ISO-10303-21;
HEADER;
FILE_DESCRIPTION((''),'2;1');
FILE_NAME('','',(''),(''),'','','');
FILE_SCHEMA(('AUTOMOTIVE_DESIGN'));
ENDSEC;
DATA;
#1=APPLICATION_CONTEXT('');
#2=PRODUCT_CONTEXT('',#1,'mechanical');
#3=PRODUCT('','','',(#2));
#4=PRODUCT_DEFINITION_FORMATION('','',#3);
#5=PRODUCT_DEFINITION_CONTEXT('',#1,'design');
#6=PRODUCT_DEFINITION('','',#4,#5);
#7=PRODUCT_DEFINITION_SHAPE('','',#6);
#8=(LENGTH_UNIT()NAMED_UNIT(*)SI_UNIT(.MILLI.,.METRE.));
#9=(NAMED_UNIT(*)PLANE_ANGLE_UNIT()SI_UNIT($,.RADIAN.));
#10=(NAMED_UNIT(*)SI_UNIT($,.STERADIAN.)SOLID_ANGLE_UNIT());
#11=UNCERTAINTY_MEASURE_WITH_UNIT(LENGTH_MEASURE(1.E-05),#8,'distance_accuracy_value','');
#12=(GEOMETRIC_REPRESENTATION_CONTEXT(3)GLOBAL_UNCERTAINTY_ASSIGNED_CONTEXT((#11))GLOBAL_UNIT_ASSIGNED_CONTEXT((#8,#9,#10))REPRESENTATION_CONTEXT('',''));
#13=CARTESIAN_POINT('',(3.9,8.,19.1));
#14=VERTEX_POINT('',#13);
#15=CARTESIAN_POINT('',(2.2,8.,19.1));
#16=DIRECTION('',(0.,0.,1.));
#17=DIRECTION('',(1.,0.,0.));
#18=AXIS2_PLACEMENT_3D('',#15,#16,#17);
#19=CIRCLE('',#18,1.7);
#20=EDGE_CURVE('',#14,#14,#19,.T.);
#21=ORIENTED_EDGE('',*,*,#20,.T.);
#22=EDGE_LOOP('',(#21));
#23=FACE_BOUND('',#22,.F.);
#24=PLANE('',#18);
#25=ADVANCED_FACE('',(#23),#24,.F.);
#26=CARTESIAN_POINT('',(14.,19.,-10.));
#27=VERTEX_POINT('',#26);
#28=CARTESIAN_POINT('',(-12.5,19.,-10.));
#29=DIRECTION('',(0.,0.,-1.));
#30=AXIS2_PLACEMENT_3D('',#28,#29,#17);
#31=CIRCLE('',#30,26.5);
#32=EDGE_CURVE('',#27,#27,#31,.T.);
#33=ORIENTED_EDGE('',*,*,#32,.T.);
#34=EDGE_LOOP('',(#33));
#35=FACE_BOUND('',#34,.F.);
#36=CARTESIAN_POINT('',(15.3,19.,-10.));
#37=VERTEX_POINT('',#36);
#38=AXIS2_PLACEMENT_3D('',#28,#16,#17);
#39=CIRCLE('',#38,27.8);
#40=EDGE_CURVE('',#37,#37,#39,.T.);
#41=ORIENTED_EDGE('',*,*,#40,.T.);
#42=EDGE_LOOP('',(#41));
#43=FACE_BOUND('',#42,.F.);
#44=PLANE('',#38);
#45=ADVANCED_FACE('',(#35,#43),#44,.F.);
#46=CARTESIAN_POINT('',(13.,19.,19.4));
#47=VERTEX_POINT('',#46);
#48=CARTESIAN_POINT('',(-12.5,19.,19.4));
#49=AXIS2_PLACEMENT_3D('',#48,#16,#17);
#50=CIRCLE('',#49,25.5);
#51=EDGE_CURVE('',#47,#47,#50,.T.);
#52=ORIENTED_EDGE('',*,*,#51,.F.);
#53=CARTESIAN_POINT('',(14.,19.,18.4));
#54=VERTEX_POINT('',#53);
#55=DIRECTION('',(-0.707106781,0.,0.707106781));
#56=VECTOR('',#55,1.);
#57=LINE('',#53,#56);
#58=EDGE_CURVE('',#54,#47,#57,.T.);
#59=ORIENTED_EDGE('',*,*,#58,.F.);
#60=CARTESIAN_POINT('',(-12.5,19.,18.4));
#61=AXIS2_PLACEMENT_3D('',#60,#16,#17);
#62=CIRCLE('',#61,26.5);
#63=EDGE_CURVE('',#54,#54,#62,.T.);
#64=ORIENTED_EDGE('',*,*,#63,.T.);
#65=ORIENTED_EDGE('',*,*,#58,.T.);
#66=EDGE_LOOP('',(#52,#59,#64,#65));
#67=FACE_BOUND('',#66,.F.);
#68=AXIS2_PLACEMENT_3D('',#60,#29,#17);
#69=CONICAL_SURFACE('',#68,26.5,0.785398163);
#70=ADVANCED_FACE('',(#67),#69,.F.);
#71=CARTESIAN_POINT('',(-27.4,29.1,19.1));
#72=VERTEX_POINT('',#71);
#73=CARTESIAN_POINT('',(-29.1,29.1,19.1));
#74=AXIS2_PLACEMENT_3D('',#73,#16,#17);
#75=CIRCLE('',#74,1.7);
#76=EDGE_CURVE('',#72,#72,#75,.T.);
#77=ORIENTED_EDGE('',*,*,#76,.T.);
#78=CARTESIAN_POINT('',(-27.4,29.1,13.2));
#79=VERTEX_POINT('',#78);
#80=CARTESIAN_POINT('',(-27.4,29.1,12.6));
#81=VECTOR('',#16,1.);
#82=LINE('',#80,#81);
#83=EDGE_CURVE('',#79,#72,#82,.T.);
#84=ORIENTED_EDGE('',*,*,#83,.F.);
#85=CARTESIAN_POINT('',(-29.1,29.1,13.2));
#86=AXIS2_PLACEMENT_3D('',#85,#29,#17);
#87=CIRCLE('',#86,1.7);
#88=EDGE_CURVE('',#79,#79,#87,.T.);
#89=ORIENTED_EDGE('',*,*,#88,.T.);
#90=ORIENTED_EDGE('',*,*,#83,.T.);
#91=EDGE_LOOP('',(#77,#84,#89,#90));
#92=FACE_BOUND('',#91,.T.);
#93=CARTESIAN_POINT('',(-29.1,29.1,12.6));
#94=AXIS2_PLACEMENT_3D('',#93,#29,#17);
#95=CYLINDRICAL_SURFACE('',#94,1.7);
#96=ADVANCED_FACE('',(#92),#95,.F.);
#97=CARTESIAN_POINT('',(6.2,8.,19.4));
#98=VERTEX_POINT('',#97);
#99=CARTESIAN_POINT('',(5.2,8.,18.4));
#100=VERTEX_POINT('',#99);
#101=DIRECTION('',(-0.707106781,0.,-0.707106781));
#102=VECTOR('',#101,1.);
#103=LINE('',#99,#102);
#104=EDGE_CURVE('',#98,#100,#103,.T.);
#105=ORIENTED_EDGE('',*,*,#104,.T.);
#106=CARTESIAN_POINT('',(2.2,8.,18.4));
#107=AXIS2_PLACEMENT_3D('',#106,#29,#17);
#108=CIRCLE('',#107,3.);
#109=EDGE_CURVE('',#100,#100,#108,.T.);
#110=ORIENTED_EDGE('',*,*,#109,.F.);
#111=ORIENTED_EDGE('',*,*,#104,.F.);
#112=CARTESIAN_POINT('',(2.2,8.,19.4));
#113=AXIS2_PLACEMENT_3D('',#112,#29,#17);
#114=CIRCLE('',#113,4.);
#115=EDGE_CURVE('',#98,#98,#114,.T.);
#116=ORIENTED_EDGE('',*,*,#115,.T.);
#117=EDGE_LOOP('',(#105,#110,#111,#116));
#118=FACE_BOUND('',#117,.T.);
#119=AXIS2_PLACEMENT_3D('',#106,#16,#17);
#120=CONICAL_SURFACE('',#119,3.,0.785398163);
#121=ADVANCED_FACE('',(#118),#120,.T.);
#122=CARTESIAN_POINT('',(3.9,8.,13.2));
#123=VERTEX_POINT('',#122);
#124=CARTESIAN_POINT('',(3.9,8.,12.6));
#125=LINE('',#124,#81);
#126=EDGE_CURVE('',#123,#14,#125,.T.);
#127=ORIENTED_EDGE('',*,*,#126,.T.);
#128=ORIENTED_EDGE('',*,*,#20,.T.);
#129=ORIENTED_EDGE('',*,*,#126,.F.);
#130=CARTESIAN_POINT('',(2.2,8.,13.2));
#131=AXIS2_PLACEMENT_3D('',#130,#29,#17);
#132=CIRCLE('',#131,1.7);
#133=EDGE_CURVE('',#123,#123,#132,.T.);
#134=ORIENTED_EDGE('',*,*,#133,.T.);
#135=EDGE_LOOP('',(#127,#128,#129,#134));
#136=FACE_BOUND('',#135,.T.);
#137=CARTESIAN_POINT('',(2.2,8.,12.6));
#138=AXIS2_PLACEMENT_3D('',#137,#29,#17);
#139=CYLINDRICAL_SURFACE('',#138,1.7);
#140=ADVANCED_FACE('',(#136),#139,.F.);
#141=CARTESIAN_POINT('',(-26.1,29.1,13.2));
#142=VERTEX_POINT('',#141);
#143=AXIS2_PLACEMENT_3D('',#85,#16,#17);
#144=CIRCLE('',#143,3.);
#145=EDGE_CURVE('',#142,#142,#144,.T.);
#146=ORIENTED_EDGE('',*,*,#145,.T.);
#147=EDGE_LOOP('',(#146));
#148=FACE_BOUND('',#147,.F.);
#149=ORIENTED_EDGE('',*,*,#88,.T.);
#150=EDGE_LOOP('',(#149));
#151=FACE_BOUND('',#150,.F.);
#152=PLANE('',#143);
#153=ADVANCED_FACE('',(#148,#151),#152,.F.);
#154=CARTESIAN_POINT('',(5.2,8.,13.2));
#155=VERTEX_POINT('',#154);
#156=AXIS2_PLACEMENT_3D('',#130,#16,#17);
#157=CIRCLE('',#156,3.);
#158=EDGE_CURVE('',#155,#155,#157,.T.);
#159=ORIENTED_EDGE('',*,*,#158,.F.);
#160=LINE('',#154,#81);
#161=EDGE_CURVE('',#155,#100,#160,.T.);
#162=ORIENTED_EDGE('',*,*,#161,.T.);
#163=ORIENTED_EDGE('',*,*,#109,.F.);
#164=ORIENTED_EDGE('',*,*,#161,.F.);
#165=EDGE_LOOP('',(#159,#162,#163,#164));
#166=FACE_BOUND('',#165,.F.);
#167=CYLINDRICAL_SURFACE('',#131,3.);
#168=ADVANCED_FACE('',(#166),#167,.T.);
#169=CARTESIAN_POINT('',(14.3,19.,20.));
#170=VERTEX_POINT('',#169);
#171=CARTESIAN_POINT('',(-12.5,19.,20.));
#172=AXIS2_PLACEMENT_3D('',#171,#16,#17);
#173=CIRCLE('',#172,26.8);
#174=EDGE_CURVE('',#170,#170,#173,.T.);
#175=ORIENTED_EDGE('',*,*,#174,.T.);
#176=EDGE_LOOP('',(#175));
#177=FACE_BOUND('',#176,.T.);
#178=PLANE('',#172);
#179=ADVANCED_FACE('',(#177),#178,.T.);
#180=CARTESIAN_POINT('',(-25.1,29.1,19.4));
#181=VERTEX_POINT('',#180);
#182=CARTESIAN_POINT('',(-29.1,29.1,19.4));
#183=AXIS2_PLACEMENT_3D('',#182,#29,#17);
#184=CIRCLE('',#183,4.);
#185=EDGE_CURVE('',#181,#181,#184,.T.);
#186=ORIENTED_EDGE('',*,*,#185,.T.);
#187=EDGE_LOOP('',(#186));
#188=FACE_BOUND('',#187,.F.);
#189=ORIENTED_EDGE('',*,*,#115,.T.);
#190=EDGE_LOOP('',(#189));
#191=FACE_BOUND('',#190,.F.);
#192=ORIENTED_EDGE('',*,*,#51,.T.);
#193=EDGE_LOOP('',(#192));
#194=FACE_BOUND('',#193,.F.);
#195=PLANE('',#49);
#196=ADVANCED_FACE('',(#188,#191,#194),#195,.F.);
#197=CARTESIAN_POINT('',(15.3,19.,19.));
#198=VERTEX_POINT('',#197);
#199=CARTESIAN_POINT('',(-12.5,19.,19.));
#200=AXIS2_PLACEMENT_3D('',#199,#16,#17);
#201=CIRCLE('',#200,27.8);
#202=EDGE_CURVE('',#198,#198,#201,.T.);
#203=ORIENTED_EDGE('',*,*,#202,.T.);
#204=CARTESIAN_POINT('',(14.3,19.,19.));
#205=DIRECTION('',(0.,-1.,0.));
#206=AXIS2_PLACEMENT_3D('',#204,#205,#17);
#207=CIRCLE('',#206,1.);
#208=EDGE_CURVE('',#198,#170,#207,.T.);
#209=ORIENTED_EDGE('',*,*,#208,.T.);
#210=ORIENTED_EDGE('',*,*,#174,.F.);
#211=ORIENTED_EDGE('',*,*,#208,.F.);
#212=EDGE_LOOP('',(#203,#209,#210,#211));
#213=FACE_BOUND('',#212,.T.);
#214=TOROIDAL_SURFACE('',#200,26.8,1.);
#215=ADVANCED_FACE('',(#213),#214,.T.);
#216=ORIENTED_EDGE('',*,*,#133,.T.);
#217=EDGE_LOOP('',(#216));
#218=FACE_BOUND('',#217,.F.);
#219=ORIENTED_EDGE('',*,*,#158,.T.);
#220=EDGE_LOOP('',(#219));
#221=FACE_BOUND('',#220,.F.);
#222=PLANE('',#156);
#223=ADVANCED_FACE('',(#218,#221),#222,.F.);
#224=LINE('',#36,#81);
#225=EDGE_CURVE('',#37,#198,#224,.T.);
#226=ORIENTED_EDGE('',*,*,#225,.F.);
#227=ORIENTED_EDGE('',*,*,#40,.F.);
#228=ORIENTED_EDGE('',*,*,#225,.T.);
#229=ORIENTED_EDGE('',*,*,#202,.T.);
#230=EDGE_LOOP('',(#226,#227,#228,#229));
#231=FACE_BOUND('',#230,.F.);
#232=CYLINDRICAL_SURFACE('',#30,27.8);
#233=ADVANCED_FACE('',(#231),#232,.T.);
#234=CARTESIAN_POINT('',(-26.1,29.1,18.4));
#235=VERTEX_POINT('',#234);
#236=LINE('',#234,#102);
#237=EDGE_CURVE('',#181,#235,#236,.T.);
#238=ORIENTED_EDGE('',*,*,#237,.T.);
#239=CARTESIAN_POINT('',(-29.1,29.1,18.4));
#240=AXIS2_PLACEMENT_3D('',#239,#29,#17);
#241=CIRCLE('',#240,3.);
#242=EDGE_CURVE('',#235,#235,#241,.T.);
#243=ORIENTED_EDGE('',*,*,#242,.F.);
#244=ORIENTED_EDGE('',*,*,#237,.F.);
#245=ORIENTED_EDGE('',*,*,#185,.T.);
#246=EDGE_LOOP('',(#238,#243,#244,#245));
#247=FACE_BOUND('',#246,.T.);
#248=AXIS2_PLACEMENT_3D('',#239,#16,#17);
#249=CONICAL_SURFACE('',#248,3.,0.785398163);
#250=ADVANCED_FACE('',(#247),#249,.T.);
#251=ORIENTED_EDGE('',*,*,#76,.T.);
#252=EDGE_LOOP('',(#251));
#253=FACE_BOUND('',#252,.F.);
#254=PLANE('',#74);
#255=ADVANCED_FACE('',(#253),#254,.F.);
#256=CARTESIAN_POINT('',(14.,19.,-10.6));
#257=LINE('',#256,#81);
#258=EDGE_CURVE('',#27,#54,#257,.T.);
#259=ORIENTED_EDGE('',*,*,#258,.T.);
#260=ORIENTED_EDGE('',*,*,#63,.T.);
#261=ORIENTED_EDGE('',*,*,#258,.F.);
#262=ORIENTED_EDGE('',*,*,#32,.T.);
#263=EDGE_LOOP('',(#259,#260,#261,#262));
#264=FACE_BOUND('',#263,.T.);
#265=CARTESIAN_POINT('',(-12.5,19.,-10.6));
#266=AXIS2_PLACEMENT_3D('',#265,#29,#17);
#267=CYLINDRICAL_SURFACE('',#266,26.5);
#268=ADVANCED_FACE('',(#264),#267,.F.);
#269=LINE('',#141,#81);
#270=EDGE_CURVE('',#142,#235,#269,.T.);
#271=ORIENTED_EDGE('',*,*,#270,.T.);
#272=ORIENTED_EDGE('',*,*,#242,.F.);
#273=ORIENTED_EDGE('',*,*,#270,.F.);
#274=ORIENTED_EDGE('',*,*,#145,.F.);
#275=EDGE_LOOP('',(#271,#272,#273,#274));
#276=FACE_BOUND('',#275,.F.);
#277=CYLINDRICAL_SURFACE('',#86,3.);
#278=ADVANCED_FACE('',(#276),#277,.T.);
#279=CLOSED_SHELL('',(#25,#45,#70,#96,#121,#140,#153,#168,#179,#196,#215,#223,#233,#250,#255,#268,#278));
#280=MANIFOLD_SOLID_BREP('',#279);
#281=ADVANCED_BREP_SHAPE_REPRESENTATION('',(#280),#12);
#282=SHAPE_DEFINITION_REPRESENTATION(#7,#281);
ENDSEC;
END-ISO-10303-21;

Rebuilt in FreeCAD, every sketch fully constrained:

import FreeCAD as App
import Part
import Sketcher

V = App.Vector
Q = App.Units.Quantity


def edges_at(feature, points):
    """Names of the edges that pass closest to the given points."""
    edges = feature.Shape.Edges
    near = lambda p: min(range(len(edges)), key=lambda i: edges[i].distToShape(Part.Vertex(*p))[0])
    return sorted({f"Edge{near(p) + 1}" for p in points})

doc = App.newDocument("Part")
body = doc.addObject("PartDesign::Body", "Body")

sketch1 = doc.addObject("Sketcher::SketchObject", "Sketch")
body.addObject(sketch1)
sketch1.AttachmentSupport = (doc.XY_Plane, [""])
sketch1.MapMode = "FlatFace"
sketch1.AttachmentOffset = App.Placement(V(0, 0, -3.4), App.Rotation())
sketch1.addGeometry(Part.Circle(V(2.2, 8, 0), V(0, 0, 1), 1.7), False)
sketch1.addConstraint([
    Sketcher.Constraint("Diameter", 0, Q("3.4 mm")),
    Sketcher.Constraint("DistanceY", -1, 1, 0, 3, Q("8 mm")),
    Sketcher.Constraint("DistanceX", -1, 1, 0, 3, Q("2.2 mm")),
])
pad1 = doc.addObject("PartDesign::Pad", "Pad")
body.addObject(pad1)
pad1.Profile = sketch1
pad1.Length = 6.5
body2 = doc.addObject("PartDesign::Body", "Body001")

sketch2 = doc.addObject("Sketcher::SketchObject", "Sketch001")
body2.addObject(sketch2)
sketch2.AttachmentSupport = (doc.getObject("XY_Plane001"), [""])
sketch2.MapMode = "FlatFace"
sketch2.AttachmentOffset = App.Placement(V(0, 0, -2.8), App.Rotation())
sketch2.addGeometry(Part.Circle(V(2.2, 8, 0), V(0, 0, 1), 3), False)
sketch2.addConstraint([
    Sketcher.Constraint("Diameter", 0, Q("6 mm")),
    Sketcher.Constraint("DistanceY", -1, 1, 0, 3, Q("8 mm")),
    Sketcher.Constraint("DistanceX", -1, 1, 0, 3, Q("2.2 mm")),
])
pad2 = doc.addObject("PartDesign::Pad", "Pad001")
body2.addObject(pad2)
pad2.Profile = sketch2
pad2.Length = 6.5
doc.recompute()

boolean = doc.addObject("PartDesign::Boolean", "Boolean")
body2.addObject(boolean)
boolean.Type = "Cut"
boolean.addObjects([body])
body3 = doc.addObject("PartDesign::Body", "Body002")
doc.recompute()

body2.Placement = App.Placement(V(0, 0, 16), App.Rotation(V(0, 0, 1), 0))
boolean2 = doc.addObject("PartDesign::Boolean", "Boolean001")
body3.addObject(boolean2)
boolean2.Type = "Fuse"
boolean2.addObjects([body2])
body4 = doc.addObject("PartDesign::Body", "Body003")

sketch3 = doc.addObject("Sketcher::SketchObject", "Sketch002")
body4.addObject(sketch3)
sketch3.AttachmentSupport = (doc.getObject("XY_Plane003"), [""])
sketch3.MapMode = "FlatFace"
sketch3.AttachmentOffset = App.Placement(V(0, 0, -10.6), App.Rotation())
sketch3.addGeometry(Part.Circle(V(-12.5, 19, 0), V(0, 0, 1), 26.5), False)
sketch3.addConstraint([
    Sketcher.Constraint("Diameter", 0, Q("53 mm")),
    Sketcher.Constraint("DistanceY", -1, 1, 0, 3, Q("19 mm")),
    Sketcher.Constraint("DistanceX", 0, 3, -1, 1, Q("12.5 mm")),
])
pad3 = doc.addObject("PartDesign::Pad", "Pad002")
body4.addObject(pad3)
pad3.Profile = sketch3
pad3.Length = 30
body5 = doc.addObject("PartDesign::Body", "Body004")

sketch4 = doc.addObject("Sketcher::SketchObject", "Sketch003")
body5.addObject(sketch4)
sketch4.AttachmentSupport = (doc.getObject("XY_Plane004"), [""])
sketch4.MapMode = "FlatFace"
sketch4.AttachmentOffset = App.Placement(V(0, 0, -10), App.Rotation())
sketch4.addGeometry(Part.Circle(V(-12.5, 19, 0), V(0, 0, 1), 27.8), False)
sketch4.addConstraint([
    Sketcher.Constraint("Diameter", 0, Q("55.6 mm")),
    Sketcher.Constraint("DistanceY", -1, 1, 0, 3, Q("19 mm")),
    Sketcher.Constraint("DistanceX", 0, 3, -1, 1, Q("12.5 mm")),
])
pad4 = doc.addObject("PartDesign::Pad", "Pad003")
body5.addObject(pad4)
pad4.Profile = sketch4
pad4.Length = 30
doc.recompute()

boolean3 = doc.addObject("PartDesign::Boolean", "Boolean002")
body5.addObject(boolean3)
boolean3.Type = "Cut"
boolean3.addObjects([body4])
body6 = doc.addObject("PartDesign::Body", "Body005")

sketch5 = doc.addObject("Sketcher::SketchObject", "Sketch004")
body6.addObject(sketch5)
sketch5.AttachmentSupport = (doc.getObject("XY_Plane005"), [""])
sketch5.MapMode = "FlatFace"
sketch5.AttachmentOffset = App.Placement(V(0, 0, -3.4), App.Rotation())
sketch5.addGeometry(Part.Circle(V(-29.1, 29.1, 0), V(0, 0, 1), 1.7), False)
sketch5.addConstraint([
    Sketcher.Constraint("Diameter", 0, Q("3.4 mm")),
    Sketcher.Constraint("DistanceX", 0, 3, -1, 1, Q("29.1 mm")),
    Sketcher.Constraint("DistanceY", -1, 1, 0, 3, Q("29.1 mm")),
])
pad5 = doc.addObject("PartDesign::Pad", "Pad004")
body6.addObject(pad5)
pad5.Profile = sketch5
pad5.Length = 6.5
body7 = doc.addObject("PartDesign::Body", "Body006")

sketch6 = doc.addObject("Sketcher::SketchObject", "Sketch005")
body7.addObject(sketch6)
sketch6.AttachmentSupport = (doc.getObject("XY_Plane006"), [""])
sketch6.MapMode = "FlatFace"
sketch6.AttachmentOffset = App.Placement(V(0, 0, -2.8), App.Rotation())
sketch6.addGeometry(Part.Circle(V(-29.1, 29.1, 0), V(0, 0, 1), 3), False)
sketch6.addConstraint([
    Sketcher.Constraint("Diameter", 0, Q("6 mm")),
    Sketcher.Constraint("DistanceX", 0, 3, -1, 1, Q("29.1 mm")),
    Sketcher.Constraint("DistanceY", -1, 1, 0, 3, Q("29.1 mm")),
])
pad6 = doc.addObject("PartDesign::Pad", "Pad005")
body7.addObject(pad6)
pad6.Profile = sketch6
pad6.Length = 6.5
doc.recompute()

boolean4 = doc.addObject("PartDesign::Boolean", "Boolean003")
body7.addObject(boolean4)
boolean4.Type = "Cut"
boolean4.addObjects([body6])
body8 = doc.addObject("PartDesign::Body", "Body007")
body8.AllowCompound = True
doc.recompute()

body7.Placement = App.Placement(V(0, 0, 16), App.Rotation(V(0, 0, 1), 0))
boolean5 = doc.addObject("PartDesign::Boolean", "Boolean004")
body8.addObject(boolean5)
boolean5.Type = "Fuse"
boolean5.addObjects([body7])
doc.recompute()

boolean6 = doc.addObject("PartDesign::Boolean", "Boolean005")
body8.addObject(boolean6)
boolean6.Type = "Fuse"
boolean6.addObjects([body3])
doc.recompute()

boolean7 = doc.addObject("PartDesign::Boolean", "Boolean006")
body8.addObject(boolean7)
boolean7.Type = "Fuse"
boolean7.addObjects([body5])
doc.recompute()

chamfer = doc.addObject("PartDesign::Chamfer", "Chamfer")
body8.addObject(chamfer)
chamfer.Base = (boolean7, edges_at(boolean7, [(-32.1, 29.1, 19.4), (-39, 19, 19.4), (-0.8, 8, 19.4)]))
chamfer.Size = 1
doc.recompute()

fillet = doc.addObject("PartDesign::Fillet", "Fillet")
body8.addObject(fillet)
fillet.Base = (chamfer, edges_at(chamfer, [(-40.3, 19, 20)]))
fillet.Radius = 1

doc.recompute()
